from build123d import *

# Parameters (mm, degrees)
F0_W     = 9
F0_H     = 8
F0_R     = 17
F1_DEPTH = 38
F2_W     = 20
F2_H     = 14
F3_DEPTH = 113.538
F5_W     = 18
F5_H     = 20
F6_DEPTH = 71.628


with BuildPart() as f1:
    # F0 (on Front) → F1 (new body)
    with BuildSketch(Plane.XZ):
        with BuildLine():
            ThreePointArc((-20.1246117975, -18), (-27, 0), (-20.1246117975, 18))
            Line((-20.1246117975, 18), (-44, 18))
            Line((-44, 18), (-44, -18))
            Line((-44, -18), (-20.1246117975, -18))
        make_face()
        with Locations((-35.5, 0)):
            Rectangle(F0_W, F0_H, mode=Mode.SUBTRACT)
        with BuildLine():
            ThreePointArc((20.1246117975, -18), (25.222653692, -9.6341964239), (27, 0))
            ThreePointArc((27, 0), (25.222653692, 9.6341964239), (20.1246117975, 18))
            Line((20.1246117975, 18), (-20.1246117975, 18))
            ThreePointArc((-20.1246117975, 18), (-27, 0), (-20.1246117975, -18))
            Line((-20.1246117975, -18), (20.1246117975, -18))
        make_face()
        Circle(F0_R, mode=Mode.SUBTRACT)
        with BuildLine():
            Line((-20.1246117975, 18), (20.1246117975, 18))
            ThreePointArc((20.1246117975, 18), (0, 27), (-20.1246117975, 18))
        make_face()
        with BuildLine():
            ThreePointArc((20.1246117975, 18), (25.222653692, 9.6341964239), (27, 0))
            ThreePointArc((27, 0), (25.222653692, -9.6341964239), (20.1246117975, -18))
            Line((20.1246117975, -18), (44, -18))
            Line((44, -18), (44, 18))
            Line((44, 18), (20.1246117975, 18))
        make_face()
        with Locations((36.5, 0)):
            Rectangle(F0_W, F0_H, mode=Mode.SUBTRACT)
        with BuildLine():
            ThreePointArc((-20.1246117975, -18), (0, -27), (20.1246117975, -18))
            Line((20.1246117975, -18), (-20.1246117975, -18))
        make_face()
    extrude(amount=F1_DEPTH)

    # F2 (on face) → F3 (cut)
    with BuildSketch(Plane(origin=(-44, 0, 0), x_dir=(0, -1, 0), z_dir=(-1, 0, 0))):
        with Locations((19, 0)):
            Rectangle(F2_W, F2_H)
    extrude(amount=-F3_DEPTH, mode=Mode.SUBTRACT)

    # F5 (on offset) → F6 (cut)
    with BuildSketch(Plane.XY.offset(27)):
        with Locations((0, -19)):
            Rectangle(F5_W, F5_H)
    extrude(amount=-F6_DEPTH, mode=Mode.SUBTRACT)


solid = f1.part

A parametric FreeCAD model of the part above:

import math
import FreeCAD as App
import Part
import Sketcher
Q = App.Units.Quantity


def add_polygon(sketch, points):
    """Adds a closed chain of lines whose ends are joined by coincident constraints."""
    first, n = sketch.GeometryCount, len(points)
    for a, b in zip(points, points[1:] + points[:1]):
        sketch.addGeometry(Part.LineSegment(App.Vector(*a, 0), App.Vector(*b, 0)), False)
    for i in range(n):
        sketch.addConstraint(Sketcher.Constraint("Coincident", first + i, 2, first + (i + 1) % n, 1))

doc = App.newDocument("Part")
body = doc.addObject("PartDesign::Body", "Body")

# Sketch on XZ plane
sketch1 = body.newObject("Sketcher::SketchObject", "Sketch")
sketch1.AttachmentSupport = (doc.getObject("XZ_Plane"), [""])
sketch1.MapMode = "FlatFace"
sketch1.addGeometry(Part.LineSegment(App.Vector(-44, -18, 0), App.Vector(-20, -18, 0)), False)  # 0
sketch1.addGeometry(Part.ArcOfCircle(Part.Circle(App.Vector(0, 0, 0), App.Vector(0, 0, 1), 27), math.radians(-138), math.radians(-42)), False)  # 1
sketch1.addGeometry(Part.LineSegment(App.Vector(20, -18, 0), App.Vector(44, -18, 0)), False)  # 2
sketch1.addGeometry(Part.LineSegment(App.Vector(44, -18, 0), App.Vector(44, 18, 0)), False)  # 3
sketch1.addGeometry(Part.LineSegment(App.Vector(44, 18, 0), App.Vector(20, 18, 0)), False)  # 4
sketch1.addGeometry(Part.ArcOfCircle(Part.Circle(App.Vector(0, 0, 0), App.Vector(0, 0, 1), 27), math.radians(42), math.radians(138)), False)  # 5
sketch1.addGeometry(Part.LineSegment(App.Vector(-20, 18, 0), App.Vector(-44, 18, 0)), False)  # 6
sketch1.addGeometry(Part.LineSegment(App.Vector(-44, 18, 0), App.Vector(-44, -18, 0)), False)  # 7
add_polygon(sketch1, [(-31, -4), (-40, -4), (-40, 4), (-31, 4)])  # lines 8-11
sketch1.addGeometry(Part.Circle(App.Vector(0, 0, 0), App.Vector(0, 0, 1), 17), False)  # 12
add_polygon(sketch1, [(41, -4), (32, -4), (32, 4), (41, 4)])  # lines 13-16
sketch1.addConstraint([
    Sketcher.Constraint("Coincident", 0, 2, 1, 1),
    Sketcher.Constraint("Coincident", 1, 2, 2, 1),
    Sketcher.Constraint("Coincident", 2, 2, 3, 1),
    Sketcher.Constraint("Coincident", 3, 2, 4, 1),
    Sketcher.Constraint("Coincident", 4, 2, 5, 1),
    Sketcher.Constraint("Coincident", 5, 2, 6, 1),
    Sketcher.Constraint("Coincident", 6, 2, 7, 1),
    Sketcher.Constraint("Coincident", 7, 2, 0, 1),
    Sketcher.Constraint("Horizontal", 0),
    Sketcher.Constraint("Horizontal", 2),
    Sketcher.Constraint("Vertical", 3),
    Sketcher.Constraint("Horizontal", 4),
    Sketcher.Constraint("Horizontal", 6),
    Sketcher.Constraint("Vertical", 7),
    Sketcher.Constraint("Horizontal", 8),
    Sketcher.Constraint("Vertical", 9),
    Sketcher.Constraint("Horizontal", 10),
    Sketcher.Constraint("Vertical", 11),
    Sketcher.Constraint("Horizontal", 13),
    Sketcher.Constraint("Vertical", 14),
    Sketcher.Constraint("Horizontal", 15),
    Sketcher.Constraint("Vertical", 16),
    Sketcher.Constraint("Coincident", 1, 3, -1, 1),
    Sketcher.Constraint("Coincident", 5, 3, -1, 1),
    Sketcher.Constraint("Coincident", 12, 3, -1, 1),
    Sketcher.Constraint("Equal", 1, 5),
    Sketcher.Constraint("Symmetric", 2, 2, 6, 2, -1, 1),
    Sketcher.Constraint("Horizontal", 0, 2, 1, 2),
    Sketcher.Constraint("Horizontal", 4, 2, 5, 2),
    Sketcher.Constraint("Horizontal", 11, 2, 13, 2),
    Sketcher.Constraint("Horizontal", 10, 2, 14, 2),
    Sketcher.Constraint("Equal", 10, 13),
    Sketcher.Constraint("Diameter", 12, Q("34 mm")),
    Sketcher.Constraint("Radius", 1, Q("27 mm")),
    Sketcher.Constraint("DistanceX", 8, 2, 8, 1, Q("9 mm")),
    Sketcher.Constraint("DistanceY", 3, 1, 3, 2, Q("36 mm")),
    Sketcher.Constraint("DistanceY", 9, 1, 9, 2, Q("8 mm")),
    Sketcher.Constraint("DistanceX", -1, 1, 2, 2, Q("44 mm")),
    Sketcher.Constraint("DistanceX", 8, 2, -1, 1, Q("40 mm")),
    Sketcher.Constraint("DistanceY", 8, 2, -1, 1, Q("4 mm")),
    Sketcher.Constraint("DistanceX", -1, 1, 13, 2, Q("32 mm")),
])
pad1 = body.newObject("PartDesign::Pad", "Pad")
pad1.Profile = sketch1
pad1.Length = 38

# Sketch on YZ plane
sketch2 = body.newObject("Sketcher::SketchObject", "Sketch001")
sketch2.AttachmentSupport = (doc.getObject("YZ_Plane"), [""])
sketch2.MapMode = "FlatFace"
sketch2.AttachmentOffset = App.Placement(App.Vector(0, 0, -44), App.Rotation())
add_polygon(sketch2, [(-9, 7), (-9, -7), (-29, -7), (-29, 7)])  # lines 0-3
sketch2.addConstraint([
    Sketcher.Constraint("Vertical", 0),
    Sketcher.Constraint("Horizontal", 1),
    Sketcher.Constraint("Vertical", 2),
    Sketcher.Constraint("Horizontal", 3),
    Sketcher.Constraint("DistanceX", 1, 2, 1, 1, Q("20 mm")),
    Sketcher.Constraint("DistanceY", 0, 2, 0, 1, Q("14 mm")),
    Sketcher.Constraint("DistanceX", 0, 2, -1, 1, Q("9 mm")),
    Sketcher.Constraint("DistanceY", 0, 2, -1, 1, Q("7 mm")),
])
pocket1 = body.newObject("PartDesign::Pocket", "Pocket")
pocket1.Profile = sketch2
pocket1.Length = 113.538
pocket1.Reversed = True

# Sketch on XY plane
sketch3 = body.newObject("Sketcher::SketchObject", "Sketch002")
sketch3.AttachmentSupport = (doc.getObject("XY_Plane"), [""])
sketch3.MapMode = "FlatFace"
sketch3.AttachmentOffset = App.Placement(App.Vector(0, 0, 27), App.Rotation())
add_polygon(sketch3, [(-9, -9), (-9, -29), (9, -29), (9, -9)])  # lines 0-3
sketch3.addConstraint([
    Sketcher.Constraint("Vertical", 0),
    Sketcher.Constraint("Horizontal", 1),
    Sketcher.Constraint("Vertical", 2),
    Sketcher.Constraint("Horizontal", 3),
    Sketcher.Constraint("DistanceX", 1, 1, 1, 2, Q("18 mm")),
    Sketcher.Constraint("DistanceY", 0, 2, 0, 1, Q("20 mm")),
    Sketcher.Constraint("DistanceX", 0, 2, -1, 1, Q("9 mm")),
    Sketcher.Constraint("DistanceY", 0, 2, -1, 1, Q("29 mm")),
])
pocket2 = body.newObject("PartDesign::Pocket", "Pocket001")
pocket2.Profile = sketch3
pocket2.Length = 71.628

doc.recompute()
